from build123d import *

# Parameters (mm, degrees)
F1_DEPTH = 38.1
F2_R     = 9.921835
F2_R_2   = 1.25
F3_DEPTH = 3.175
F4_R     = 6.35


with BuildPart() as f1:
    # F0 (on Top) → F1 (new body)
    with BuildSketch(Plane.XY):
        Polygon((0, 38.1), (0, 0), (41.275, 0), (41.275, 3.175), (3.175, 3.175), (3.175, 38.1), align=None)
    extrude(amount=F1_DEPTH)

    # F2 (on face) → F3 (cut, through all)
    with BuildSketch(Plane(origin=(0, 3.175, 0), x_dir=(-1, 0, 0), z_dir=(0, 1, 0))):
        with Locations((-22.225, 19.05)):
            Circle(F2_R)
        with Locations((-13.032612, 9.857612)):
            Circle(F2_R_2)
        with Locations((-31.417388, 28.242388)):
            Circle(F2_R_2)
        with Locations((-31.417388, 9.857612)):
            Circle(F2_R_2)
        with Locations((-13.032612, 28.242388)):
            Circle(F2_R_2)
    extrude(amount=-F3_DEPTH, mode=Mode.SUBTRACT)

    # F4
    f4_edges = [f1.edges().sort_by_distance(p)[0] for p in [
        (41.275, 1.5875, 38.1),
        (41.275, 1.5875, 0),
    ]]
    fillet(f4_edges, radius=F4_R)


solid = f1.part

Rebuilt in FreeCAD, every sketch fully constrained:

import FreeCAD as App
import Part
import Sketcher
Q = App.Units.Quantity


def edges_at(feature, points):
    """Names of the edges that pass closest to the given points."""
    edges = feature.Shape.Edges
    near = lambda p: min(range(len(edges)), key=lambda i: edges[i].distToShape(Part.Vertex(*p))[0])
    return sorted({f"Edge{near(p) + 1}" for p in points})

doc = App.newDocument("Part")
body = doc.addObject("PartDesign::Body", "Body")

# Sketch on XY plane
sketch1 = body.newObject("Sketcher::SketchObject", "Sketch")
sketch1.AttachmentSupport = (doc.getObject("XY_Plane"), [""])
sketch1.MapMode = "FlatFace"
sketch1.addGeometry(Part.LineSegment(App.Vector(0, 38.1, 0), App.Vector(0, 0, 0)), False)
sketch1.addGeometry(Part.LineSegment(App.Vector(0, 0, 0), App.Vector(41.3, 0, 0)), False)
sketch1.addGeometry(Part.LineSegment(App.Vector(41.3, 0, 0), App.Vector(41.3, 3.2, 0)), False)
sketch1.addGeometry(Part.LineSegment(App.Vector(41.3, 3.2, 0), App.Vector(3.2, 3.2, 0)), False)
sketch1.addGeometry(Part.LineSegment(App.Vector(3.2, 3.2, 0), App.Vector(3.2, 38.1, 0)), False)
sketch1.addGeometry(Part.LineSegment(App.Vector(3.2, 38.1, 0), App.Vector(0, 38.1, 0)), False)
sketch1.addConstraint(Sketcher.Constraint("Coincident", 0, 2, 1, 1))
sketch1.addConstraint(Sketcher.Constraint("Coincident", 1, 2, 2, 1))
sketch1.addConstraint(Sketcher.Constraint("Coincident", 2, 2, 3, 1))
sketch1.addConstraint(Sketcher.Constraint("Coincident", 3, 2, 4, 1))
sketch1.addConstraint(Sketcher.Constraint("Coincident", 4, 2, 5, 1))
sketch1.addConstraint(Sketcher.Constraint("Coincident", 5, 2, 0, 1))
sketch1.addConstraint(Sketcher.Constraint("Vertical", 0))
sketch1.addConstraint(Sketcher.Constraint("Horizontal", 1))
sketch1.addConstraint(Sketcher.Constraint("Vertical", 2))
sketch1.addConstraint(Sketcher.Constraint("Horizontal", 3))
sketch1.addConstraint(Sketcher.Constraint("Vertical", 4))
sketch1.addConstraint(Sketcher.Constraint("Horizontal", 5))
sketch1.addConstraint(Sketcher.Constraint("Coincident", 0, 2, -1, 1))
sketch1.addConstraint(Sketcher.Constraint("Equal", 3, 0))
sketch1.addConstraint(Sketcher.Constraint("Equal", 5, 2))
sketch1.addConstraint(Sketcher.Constraint("DistanceX", 3, 2, 3, 1, Q("1.5 in")))
sketch1.addConstraint(Sketcher.Constraint("DistanceX", 1, 1, 1, 2, Q("1.625 in")))
pad1 = body.newObject("PartDesign::Pad", "Pad")
pad1.Profile = sketch1
pad1.Length = Q("1.5 in")

# Sketch on XZ plane
sketch2 = body.newObject("Sketcher::SketchObject", "Sketch001")
sketch2.AttachmentSupport = (doc.getObject("XZ_Plane"), [""])
sketch2.MapMode = "FlatFace"
sketch2.AttachmentOffset = App.Placement(App.Vector(0, 0, -0.125 * 25.4), App.Rotation())
sketch2.addGeometry(Part.Circle(App.Vector(22.2, 19.1, 0), App.Vector(0, 0, 1), 9.9), False)
sketch2.addGeometry(Part.Circle(App.Vector(13, 9.9, 0), App.Vector(0, 0, 1), 1.2), False)
sketch2.addGeometry(Part.Circle(App.Vector(31.4, 28.2, 0), App.Vector(0, 0, 1), 1.2), False)
sketch2.addGeometry(Part.Circle(App.Vector(31.4, 9.9, 0), App.Vector(0, 0, 1), 1.2), False)
sketch2.addGeometry(Part.Circle(App.Vector(13, 28.2, 0), App.Vector(0, 0, 1), 1.2), False)
sketch2.addConstraint(Sketcher.Constraint("Equal", 1, 2))
sketch2.addConstraint(Sketcher.Constraint("Equal", 2, 3))
sketch2.addConstraint(Sketcher.Constraint("Equal", 3, 4))
sketch2.addConstraint(Sketcher.Constraint("Horizontal", 1, 3, 3, 3))
sketch2.addConstraint(Sketcher.Constraint("Horizontal", 2, 3, 4, 3))
sketch2.addConstraint(Sketcher.Constraint("Vertical", 2, 3, 3, 3))
sketch2.addConstraint(Sketcher.Constraint("Vertical", 1, 3, 4, 3))
sketch2.addConstraint(Sketcher.Constraint("Diameter", 1, 2.5))
sketch2.addConstraint(Sketcher.Constraint("DistanceY", -1, 1, 0, 3, Q("0.75 in")))
sketch2.addConstraint(Sketcher.Constraint("Diameter", 0, 19.84367))
sketch2.addConstraint(Sketcher.Constraint("DistanceX", -1, 1, 0, 3, Q("0.875 in")))
sketch2.addConstraint(Sketcher.Constraint("DistanceX", 1, 3, 0, 3, 9.192388))
sketch2.addConstraint(Sketcher.Constraint("DistanceY", 1, 3, 0, 3, 9.192388))
sketch2.addConstraint(Sketcher.Constraint("DistanceX", -1, 1, 2, 3, 31.417388))
sketch2.addConstraint(Sketcher.Constraint("DistanceY", -1, 1, 2, 3, 28.242388))
pocket1 = body.newObject("PartDesign::Pocket", "Pocket")
pocket1.Profile = sketch2
pocket1.Type = "ThroughAll"
pocket1.Reversed = True
doc.recompute()

fillet = body.newObject("PartDesign::Fillet", "Fillet")
fillet.Base = (pocket1, edges_at(pocket1, [(41.275, 1.587, 38.1), (41.275, 1.587, 0)]))
fillet.Radius = Q("0.25 in")

doc.recompute()
